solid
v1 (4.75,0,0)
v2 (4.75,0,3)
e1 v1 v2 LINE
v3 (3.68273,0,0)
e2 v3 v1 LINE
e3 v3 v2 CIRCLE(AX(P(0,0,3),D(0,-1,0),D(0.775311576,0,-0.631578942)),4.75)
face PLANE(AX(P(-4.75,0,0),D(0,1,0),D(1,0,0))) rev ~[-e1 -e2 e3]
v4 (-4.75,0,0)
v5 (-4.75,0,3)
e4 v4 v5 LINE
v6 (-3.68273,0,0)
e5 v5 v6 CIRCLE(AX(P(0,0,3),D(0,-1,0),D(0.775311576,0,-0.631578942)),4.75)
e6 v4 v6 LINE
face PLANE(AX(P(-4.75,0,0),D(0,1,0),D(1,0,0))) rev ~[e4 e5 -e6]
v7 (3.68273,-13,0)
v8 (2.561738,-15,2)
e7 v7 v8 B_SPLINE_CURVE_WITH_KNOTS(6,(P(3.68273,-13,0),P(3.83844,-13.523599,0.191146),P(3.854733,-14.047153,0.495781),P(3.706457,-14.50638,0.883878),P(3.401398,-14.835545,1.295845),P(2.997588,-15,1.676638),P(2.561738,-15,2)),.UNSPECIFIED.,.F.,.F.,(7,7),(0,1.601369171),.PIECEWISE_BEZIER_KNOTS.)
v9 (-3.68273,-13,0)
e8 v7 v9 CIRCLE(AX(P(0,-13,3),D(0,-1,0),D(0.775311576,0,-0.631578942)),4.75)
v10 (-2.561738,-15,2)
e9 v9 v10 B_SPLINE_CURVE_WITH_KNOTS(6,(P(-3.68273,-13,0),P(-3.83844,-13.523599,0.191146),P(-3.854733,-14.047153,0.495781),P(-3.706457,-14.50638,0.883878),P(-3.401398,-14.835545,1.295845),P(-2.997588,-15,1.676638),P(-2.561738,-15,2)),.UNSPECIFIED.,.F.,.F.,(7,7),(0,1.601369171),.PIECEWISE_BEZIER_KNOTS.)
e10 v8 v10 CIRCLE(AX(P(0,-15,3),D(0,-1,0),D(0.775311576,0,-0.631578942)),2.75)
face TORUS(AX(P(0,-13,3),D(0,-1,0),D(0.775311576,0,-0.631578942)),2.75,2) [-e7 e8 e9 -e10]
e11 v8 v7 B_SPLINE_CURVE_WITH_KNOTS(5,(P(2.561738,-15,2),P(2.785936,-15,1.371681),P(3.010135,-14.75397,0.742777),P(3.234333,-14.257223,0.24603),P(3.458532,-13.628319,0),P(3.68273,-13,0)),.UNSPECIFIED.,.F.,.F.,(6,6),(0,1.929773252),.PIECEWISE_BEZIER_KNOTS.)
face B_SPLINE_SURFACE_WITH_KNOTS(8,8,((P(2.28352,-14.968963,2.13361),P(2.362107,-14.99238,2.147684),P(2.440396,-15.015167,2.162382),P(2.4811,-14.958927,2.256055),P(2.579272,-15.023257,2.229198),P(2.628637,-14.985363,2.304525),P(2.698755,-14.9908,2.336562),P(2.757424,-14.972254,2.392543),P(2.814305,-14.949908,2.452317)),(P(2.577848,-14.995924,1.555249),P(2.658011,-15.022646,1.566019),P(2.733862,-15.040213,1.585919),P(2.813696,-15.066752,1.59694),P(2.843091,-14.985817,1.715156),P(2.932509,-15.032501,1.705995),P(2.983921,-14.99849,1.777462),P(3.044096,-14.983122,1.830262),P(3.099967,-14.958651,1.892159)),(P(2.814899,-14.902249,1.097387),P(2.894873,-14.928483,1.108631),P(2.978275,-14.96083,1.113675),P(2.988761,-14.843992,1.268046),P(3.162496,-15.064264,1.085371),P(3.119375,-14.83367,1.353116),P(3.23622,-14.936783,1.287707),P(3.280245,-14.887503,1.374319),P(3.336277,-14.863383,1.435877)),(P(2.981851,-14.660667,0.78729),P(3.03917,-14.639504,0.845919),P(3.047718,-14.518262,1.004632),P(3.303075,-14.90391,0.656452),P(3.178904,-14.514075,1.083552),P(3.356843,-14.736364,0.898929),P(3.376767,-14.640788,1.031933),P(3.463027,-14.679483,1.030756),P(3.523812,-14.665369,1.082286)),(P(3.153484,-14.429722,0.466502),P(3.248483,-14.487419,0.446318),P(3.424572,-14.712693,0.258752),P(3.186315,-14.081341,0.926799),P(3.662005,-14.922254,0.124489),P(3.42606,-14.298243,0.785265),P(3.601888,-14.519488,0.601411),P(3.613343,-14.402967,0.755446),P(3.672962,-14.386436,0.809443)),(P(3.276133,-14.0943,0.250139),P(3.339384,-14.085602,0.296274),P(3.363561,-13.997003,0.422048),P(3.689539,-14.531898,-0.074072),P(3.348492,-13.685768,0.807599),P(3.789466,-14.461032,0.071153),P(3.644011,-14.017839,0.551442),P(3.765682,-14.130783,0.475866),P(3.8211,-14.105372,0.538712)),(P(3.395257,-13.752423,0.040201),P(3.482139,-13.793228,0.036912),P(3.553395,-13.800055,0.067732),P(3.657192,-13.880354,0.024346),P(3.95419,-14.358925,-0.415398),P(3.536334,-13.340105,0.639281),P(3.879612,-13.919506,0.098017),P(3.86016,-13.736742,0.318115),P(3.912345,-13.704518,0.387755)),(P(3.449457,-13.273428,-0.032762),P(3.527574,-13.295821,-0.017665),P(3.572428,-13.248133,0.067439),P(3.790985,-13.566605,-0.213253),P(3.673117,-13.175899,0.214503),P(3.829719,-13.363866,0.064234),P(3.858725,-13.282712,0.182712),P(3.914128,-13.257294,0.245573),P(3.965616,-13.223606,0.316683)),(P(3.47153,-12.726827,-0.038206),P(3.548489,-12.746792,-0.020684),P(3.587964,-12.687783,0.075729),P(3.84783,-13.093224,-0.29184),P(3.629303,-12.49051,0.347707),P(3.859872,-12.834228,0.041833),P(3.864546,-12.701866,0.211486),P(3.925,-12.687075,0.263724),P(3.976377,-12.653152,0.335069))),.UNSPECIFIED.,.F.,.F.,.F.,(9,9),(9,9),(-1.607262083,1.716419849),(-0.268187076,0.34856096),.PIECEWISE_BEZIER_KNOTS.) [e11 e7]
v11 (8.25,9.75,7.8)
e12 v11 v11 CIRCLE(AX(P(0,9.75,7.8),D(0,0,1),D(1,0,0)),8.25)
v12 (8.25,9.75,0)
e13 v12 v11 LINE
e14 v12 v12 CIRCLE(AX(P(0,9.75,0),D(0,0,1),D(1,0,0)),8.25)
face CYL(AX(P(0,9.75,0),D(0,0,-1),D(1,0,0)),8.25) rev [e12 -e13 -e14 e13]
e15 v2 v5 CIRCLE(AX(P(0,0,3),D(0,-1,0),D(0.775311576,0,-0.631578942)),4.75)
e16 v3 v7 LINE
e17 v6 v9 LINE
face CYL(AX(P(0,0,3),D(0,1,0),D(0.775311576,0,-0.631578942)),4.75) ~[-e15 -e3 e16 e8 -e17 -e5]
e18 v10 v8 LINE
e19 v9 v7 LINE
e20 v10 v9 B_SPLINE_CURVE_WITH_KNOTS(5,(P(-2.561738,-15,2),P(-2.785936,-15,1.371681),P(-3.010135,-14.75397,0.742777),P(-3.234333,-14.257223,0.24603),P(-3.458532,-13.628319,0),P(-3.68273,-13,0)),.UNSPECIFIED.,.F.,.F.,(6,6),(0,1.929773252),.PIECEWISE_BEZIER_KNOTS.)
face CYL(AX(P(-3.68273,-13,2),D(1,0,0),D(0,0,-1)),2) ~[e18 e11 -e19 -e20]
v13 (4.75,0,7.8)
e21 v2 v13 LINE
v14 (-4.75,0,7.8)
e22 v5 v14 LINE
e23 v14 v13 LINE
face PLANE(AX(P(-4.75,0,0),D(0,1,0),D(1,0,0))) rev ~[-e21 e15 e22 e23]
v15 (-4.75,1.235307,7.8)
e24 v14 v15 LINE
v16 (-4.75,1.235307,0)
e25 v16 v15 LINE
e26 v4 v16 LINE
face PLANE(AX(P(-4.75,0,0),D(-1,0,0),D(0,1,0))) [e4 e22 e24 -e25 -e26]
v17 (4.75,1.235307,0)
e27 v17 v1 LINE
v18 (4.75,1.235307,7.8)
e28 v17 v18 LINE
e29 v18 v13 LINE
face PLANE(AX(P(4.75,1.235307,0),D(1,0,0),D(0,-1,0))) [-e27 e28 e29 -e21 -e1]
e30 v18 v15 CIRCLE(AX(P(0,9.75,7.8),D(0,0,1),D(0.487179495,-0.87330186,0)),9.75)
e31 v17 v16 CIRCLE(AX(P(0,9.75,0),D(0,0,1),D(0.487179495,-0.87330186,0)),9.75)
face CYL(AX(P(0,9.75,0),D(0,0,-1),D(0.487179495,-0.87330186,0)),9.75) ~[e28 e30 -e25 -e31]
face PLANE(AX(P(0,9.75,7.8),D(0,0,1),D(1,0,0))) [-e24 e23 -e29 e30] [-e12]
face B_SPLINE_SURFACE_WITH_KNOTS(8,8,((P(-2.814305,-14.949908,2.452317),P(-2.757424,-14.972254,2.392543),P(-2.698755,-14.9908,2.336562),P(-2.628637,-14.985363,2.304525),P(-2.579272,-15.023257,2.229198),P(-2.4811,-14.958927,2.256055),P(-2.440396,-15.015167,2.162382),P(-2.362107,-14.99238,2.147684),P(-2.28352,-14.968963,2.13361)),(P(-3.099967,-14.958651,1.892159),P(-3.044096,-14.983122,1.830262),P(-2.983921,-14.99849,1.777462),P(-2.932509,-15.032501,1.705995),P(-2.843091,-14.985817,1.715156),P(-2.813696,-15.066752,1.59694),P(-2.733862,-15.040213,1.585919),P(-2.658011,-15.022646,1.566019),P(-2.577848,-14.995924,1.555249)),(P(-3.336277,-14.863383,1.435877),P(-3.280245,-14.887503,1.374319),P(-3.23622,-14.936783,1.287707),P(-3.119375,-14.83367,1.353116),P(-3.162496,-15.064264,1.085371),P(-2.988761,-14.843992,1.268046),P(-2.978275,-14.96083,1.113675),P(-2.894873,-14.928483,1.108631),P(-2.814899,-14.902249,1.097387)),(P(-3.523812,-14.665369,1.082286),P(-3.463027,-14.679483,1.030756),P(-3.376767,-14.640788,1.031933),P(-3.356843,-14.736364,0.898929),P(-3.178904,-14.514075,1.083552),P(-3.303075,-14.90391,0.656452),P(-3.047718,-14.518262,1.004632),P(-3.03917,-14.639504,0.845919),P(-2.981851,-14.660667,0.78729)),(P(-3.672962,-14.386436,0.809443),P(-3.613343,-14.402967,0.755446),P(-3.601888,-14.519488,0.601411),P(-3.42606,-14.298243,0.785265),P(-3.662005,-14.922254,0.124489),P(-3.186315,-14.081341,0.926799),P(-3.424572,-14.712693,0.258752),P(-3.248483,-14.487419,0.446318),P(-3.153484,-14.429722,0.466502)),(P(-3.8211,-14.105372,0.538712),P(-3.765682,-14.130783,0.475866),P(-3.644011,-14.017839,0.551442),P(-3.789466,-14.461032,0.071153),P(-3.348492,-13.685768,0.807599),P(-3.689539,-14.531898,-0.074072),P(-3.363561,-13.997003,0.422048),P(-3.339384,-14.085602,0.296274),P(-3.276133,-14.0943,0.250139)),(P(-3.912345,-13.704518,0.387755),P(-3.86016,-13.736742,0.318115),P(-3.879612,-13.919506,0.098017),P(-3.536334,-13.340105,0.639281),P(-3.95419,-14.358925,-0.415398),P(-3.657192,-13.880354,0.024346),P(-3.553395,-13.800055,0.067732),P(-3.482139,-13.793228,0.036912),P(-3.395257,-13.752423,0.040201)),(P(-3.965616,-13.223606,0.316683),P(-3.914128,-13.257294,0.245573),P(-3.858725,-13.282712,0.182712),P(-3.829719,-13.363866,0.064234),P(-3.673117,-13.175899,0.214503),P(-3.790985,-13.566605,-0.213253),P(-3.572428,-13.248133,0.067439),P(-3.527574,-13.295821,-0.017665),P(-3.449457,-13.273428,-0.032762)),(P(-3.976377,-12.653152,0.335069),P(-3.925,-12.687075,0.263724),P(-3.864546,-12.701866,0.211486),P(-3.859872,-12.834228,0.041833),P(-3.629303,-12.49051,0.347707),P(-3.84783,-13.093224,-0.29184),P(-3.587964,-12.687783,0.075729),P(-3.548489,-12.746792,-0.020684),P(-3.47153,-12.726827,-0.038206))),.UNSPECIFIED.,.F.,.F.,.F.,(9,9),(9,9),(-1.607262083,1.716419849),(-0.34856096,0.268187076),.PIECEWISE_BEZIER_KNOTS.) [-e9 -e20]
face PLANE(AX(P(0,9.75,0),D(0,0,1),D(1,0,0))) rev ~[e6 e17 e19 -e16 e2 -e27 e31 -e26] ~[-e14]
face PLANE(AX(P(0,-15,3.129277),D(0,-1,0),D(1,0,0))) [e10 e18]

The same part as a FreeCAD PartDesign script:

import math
import FreeCAD as App
import Part
import Sketcher


def edges_at(feature, points):
    """Names of the edges that pass closest to the given points."""
    edges = feature.Shape.Edges
    near = lambda p: min(range(len(edges)), key=lambda i: edges[i].distToShape(Part.Vertex(*p))[0])
    return sorted({f"Edge{near(p) + 1}" for p in points})

doc = App.newDocument("Part")
params = doc.addObject("Spreadsheet::Sheet", "Params")
for row, (alias, value) in enumerate([
    ("sketch1_radius", "4.75 mm"),
    ("pad1_length", "15 mm"),
    ("sketch2_diameter", "16.5 mm"),
    ("sketch2_radius", "9.75 mm"),
    ("sketch2_width", "9.5 mm"),
    ("pad2_length", "7.8 mm"),
    ("fillet_radius", "2 mm"),
], start=1):
    params.set(f"A{row}", alias)
    params.set(f"B{row}", "=" + value)
    params.setAlias(f"B{row}", alias)

body = doc.addObject("PartDesign::Body", "Body")

sketch1 = body.newObject("Sketcher::SketchObject", "Sketch")
sketch1.AttachmentSupport = (doc.getObject("XZ_Plane"), [""])
sketch1.MapMode = "FlatFace"
sketch1.addGeometry([
    Part.ArcOfCircle(Part.Circle(App.Vector(0, 3, 0), App.Vector(0, 0, 1), 4.75), math.radians(-39.16671), math.radians(219.16671)),
    Part.LineSegment(App.Vector(-3.68273, 0, 0), App.Vector(3.68273, 0, 0)),
], False)
sketch1.addConstraint([
    Sketcher.Constraint("Coincident", 0, 1, 1, 2),
    Sketcher.Constraint("Coincident", 1, 1, 0, 2),
    Sketcher.Constraint("Horizontal", 1),
    Sketcher.Constraint("Symmetric", 0, 1, 1, 1, -1, 1),
    Sketcher.Constraint("Radius", 0, 4.75),
    Sketcher.Constraint("DistanceY", -1, 1, 0, 3, 3.0),
])
sketch1.setExpression("Constraints[4]", "Params.sketch1_radius")
pad1 = body.newObject("PartDesign::Pad", "Pad")
pad1.Profile = sketch1
pad1.setExpression("Length", "Params.pad1_length")

sketch2 = body.newObject("Sketcher::SketchObject", "Sketch001")
sketch2.AttachmentSupport = (doc.getObject("XY_Plane"), [""])
sketch2.MapMode = "FlatFace"
sketch2.addGeometry([
    Part.ArcOfCircle(Part.Circle(App.Vector(0, 9.75, 0), App.Vector(0, 0, 1), 9.75), math.radians(-60.844634), math.radians(240.844634)),
    Part.LineSegment(App.Vector(-4.75, 1.235307, 0), App.Vector(-4.75, 0, 0)),
    Part.LineSegment(App.Vector(-4.75, 0, 0), App.Vector(4.75, 0, 0)),
    Part.LineSegment(App.Vector(4.75, 0, 0), App.Vector(4.75, 1.235307, 0)),
    Part.Circle(App.Vector(0, 9.75, 0), App.Vector(0, 0, 1), 8.25),
], False)
sketch2.addConstraint([
    Sketcher.Constraint("Coincident", 0, 2, 1, 1),
    Sketcher.Constraint("Coincident", 1, 2, 2, 1),
    Sketcher.Constraint("Coincident", 2, 2, 3, 1),
    Sketcher.Constraint("Coincident", 3, 2, 0, 1),
    Sketcher.Constraint("Vertical", 1),
    Sketcher.Constraint("Horizontal", 2),
    Sketcher.Constraint("Vertical", 3),
    Sketcher.Constraint("Coincident", 4, 3, 0, 3),
    Sketcher.Constraint("Symmetric", 1, 2, 2, 2, -1, 1),
    Sketcher.Constraint("PointOnObject", 0, 3, -2),
    Sketcher.Constraint("Diameter", 4, 16.5),
    Sketcher.Constraint("Radius", 0, 9.75),
    Sketcher.Constraint("DistanceX", 2, 1, 2, 2, 9.5),
    Sketcher.Constraint("DistanceY", -1, 1, 0, 3, 9.75),
])
sketch2.setExpression("Constraints[10]", "Params.sketch2_diameter")
sketch2.setExpression("Constraints[11]", "Params.sketch2_radius")
sketch2.setExpression("Constraints[12]", "Params.sketch2_width")
pad2 = body.newObject("PartDesign::Pad", "Pad001")
pad2.Profile = sketch2
pad2.setExpression("Length", "Params.pad2_length")
doc.recompute()

fillet = body.newObject("PartDesign::Fillet", "Fillet")
fillet.Base = (pad2, edges_at(pad2, [(0, -15, 7.75), (0, -15, 0)]))
fillet.setExpression("Radius", "Params.fillet_radius")

doc.recompute()
